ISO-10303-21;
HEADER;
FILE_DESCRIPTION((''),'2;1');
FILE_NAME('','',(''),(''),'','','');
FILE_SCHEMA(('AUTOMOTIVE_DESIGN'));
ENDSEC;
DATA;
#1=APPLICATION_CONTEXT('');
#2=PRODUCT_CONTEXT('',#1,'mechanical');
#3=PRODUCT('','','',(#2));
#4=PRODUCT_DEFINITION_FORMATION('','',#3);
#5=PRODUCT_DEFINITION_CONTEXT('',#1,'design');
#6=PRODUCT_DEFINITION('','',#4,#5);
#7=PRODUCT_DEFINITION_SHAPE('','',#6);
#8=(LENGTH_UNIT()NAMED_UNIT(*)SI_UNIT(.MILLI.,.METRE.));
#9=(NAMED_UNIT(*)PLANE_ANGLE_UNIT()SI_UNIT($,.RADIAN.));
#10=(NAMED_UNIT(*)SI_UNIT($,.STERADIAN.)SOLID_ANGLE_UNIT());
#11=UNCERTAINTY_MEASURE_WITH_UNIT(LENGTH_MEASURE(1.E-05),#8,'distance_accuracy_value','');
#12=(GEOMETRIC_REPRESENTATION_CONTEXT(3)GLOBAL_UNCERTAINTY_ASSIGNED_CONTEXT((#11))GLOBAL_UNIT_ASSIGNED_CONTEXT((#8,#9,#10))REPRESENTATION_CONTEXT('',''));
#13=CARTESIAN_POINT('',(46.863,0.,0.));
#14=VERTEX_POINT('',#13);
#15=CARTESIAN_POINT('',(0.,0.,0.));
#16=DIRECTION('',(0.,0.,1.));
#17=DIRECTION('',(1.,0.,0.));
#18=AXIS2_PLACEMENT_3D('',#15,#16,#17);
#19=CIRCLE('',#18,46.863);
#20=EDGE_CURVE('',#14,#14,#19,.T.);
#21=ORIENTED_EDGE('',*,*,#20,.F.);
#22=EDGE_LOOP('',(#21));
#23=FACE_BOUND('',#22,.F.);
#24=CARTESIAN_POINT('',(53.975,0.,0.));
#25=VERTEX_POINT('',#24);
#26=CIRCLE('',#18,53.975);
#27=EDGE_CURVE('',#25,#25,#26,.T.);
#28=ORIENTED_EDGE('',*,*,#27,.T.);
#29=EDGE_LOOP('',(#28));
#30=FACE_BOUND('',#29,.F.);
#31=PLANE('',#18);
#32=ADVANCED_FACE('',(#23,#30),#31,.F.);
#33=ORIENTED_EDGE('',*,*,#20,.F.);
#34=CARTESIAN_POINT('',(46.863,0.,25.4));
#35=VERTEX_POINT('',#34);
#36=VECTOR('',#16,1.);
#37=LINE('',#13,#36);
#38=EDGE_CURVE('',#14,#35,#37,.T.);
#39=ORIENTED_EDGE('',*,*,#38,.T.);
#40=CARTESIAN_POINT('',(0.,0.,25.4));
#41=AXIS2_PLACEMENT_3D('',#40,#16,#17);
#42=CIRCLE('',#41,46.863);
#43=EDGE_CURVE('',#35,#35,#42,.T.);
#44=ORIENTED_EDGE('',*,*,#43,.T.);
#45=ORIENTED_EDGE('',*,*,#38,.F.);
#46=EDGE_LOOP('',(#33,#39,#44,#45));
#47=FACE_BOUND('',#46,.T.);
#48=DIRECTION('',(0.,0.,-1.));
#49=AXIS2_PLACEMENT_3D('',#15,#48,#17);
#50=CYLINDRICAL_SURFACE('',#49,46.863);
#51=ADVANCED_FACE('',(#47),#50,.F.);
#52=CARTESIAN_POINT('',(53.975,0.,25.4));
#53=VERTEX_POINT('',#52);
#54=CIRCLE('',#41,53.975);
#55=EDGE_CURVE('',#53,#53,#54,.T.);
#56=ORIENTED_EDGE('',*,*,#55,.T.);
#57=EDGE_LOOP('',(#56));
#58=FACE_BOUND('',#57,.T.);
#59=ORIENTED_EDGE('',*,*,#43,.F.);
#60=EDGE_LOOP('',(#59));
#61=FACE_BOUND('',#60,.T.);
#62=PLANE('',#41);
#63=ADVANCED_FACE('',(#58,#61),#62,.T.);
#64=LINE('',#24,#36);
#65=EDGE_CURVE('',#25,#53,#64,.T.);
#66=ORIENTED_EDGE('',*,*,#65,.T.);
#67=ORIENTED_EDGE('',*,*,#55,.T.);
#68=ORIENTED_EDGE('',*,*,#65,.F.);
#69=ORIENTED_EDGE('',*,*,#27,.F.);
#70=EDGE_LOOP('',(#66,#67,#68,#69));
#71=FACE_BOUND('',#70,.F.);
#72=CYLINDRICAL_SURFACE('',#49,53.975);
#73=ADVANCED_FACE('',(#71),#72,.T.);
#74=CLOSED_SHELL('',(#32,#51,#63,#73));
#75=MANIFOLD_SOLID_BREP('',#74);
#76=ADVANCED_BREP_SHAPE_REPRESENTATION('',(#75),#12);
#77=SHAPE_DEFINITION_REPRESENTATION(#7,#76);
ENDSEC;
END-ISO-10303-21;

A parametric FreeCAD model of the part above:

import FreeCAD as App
import Part
import Sketcher

V = App.Vector
Q = App.Units.Quantity

doc = App.newDocument("Part")
body = doc.addObject("PartDesign::Body", "Body")

sketch1 = body.newObject("Sketcher::SketchObject", "Sketch")
sketch1.AttachmentSupport = (doc.getObject("XY_Plane"), [""])
sketch1.MapMode = "FlatFace"
sketch1.addGeometry(Part.Circle(V(0, 0, 0), V(0, 0, 1), 54), False)
sketch1.addGeometry(Part.Circle(V(0, 0, 0), V(0, 0, 1), 47), False)
sketch1.addConstraint(Sketcher.Constraint("Coincident", 0, 3, -1, 1))
sketch1.addConstraint(Sketcher.Constraint("Coincident", 1, 3, -1, 1))
sketch1.addConstraint(Sketcher.Constraint("Diameter", 0, Q("4.25 in")))
sketch1.addConstraint(Sketcher.Constraint("Diameter", 1, Q("3.69 in")))
pad1 = body.newObject("PartDesign::Pad", "Pad")
pad1.Profile = sketch1
pad1.Length = Q("1 in")

doc.recompute()
